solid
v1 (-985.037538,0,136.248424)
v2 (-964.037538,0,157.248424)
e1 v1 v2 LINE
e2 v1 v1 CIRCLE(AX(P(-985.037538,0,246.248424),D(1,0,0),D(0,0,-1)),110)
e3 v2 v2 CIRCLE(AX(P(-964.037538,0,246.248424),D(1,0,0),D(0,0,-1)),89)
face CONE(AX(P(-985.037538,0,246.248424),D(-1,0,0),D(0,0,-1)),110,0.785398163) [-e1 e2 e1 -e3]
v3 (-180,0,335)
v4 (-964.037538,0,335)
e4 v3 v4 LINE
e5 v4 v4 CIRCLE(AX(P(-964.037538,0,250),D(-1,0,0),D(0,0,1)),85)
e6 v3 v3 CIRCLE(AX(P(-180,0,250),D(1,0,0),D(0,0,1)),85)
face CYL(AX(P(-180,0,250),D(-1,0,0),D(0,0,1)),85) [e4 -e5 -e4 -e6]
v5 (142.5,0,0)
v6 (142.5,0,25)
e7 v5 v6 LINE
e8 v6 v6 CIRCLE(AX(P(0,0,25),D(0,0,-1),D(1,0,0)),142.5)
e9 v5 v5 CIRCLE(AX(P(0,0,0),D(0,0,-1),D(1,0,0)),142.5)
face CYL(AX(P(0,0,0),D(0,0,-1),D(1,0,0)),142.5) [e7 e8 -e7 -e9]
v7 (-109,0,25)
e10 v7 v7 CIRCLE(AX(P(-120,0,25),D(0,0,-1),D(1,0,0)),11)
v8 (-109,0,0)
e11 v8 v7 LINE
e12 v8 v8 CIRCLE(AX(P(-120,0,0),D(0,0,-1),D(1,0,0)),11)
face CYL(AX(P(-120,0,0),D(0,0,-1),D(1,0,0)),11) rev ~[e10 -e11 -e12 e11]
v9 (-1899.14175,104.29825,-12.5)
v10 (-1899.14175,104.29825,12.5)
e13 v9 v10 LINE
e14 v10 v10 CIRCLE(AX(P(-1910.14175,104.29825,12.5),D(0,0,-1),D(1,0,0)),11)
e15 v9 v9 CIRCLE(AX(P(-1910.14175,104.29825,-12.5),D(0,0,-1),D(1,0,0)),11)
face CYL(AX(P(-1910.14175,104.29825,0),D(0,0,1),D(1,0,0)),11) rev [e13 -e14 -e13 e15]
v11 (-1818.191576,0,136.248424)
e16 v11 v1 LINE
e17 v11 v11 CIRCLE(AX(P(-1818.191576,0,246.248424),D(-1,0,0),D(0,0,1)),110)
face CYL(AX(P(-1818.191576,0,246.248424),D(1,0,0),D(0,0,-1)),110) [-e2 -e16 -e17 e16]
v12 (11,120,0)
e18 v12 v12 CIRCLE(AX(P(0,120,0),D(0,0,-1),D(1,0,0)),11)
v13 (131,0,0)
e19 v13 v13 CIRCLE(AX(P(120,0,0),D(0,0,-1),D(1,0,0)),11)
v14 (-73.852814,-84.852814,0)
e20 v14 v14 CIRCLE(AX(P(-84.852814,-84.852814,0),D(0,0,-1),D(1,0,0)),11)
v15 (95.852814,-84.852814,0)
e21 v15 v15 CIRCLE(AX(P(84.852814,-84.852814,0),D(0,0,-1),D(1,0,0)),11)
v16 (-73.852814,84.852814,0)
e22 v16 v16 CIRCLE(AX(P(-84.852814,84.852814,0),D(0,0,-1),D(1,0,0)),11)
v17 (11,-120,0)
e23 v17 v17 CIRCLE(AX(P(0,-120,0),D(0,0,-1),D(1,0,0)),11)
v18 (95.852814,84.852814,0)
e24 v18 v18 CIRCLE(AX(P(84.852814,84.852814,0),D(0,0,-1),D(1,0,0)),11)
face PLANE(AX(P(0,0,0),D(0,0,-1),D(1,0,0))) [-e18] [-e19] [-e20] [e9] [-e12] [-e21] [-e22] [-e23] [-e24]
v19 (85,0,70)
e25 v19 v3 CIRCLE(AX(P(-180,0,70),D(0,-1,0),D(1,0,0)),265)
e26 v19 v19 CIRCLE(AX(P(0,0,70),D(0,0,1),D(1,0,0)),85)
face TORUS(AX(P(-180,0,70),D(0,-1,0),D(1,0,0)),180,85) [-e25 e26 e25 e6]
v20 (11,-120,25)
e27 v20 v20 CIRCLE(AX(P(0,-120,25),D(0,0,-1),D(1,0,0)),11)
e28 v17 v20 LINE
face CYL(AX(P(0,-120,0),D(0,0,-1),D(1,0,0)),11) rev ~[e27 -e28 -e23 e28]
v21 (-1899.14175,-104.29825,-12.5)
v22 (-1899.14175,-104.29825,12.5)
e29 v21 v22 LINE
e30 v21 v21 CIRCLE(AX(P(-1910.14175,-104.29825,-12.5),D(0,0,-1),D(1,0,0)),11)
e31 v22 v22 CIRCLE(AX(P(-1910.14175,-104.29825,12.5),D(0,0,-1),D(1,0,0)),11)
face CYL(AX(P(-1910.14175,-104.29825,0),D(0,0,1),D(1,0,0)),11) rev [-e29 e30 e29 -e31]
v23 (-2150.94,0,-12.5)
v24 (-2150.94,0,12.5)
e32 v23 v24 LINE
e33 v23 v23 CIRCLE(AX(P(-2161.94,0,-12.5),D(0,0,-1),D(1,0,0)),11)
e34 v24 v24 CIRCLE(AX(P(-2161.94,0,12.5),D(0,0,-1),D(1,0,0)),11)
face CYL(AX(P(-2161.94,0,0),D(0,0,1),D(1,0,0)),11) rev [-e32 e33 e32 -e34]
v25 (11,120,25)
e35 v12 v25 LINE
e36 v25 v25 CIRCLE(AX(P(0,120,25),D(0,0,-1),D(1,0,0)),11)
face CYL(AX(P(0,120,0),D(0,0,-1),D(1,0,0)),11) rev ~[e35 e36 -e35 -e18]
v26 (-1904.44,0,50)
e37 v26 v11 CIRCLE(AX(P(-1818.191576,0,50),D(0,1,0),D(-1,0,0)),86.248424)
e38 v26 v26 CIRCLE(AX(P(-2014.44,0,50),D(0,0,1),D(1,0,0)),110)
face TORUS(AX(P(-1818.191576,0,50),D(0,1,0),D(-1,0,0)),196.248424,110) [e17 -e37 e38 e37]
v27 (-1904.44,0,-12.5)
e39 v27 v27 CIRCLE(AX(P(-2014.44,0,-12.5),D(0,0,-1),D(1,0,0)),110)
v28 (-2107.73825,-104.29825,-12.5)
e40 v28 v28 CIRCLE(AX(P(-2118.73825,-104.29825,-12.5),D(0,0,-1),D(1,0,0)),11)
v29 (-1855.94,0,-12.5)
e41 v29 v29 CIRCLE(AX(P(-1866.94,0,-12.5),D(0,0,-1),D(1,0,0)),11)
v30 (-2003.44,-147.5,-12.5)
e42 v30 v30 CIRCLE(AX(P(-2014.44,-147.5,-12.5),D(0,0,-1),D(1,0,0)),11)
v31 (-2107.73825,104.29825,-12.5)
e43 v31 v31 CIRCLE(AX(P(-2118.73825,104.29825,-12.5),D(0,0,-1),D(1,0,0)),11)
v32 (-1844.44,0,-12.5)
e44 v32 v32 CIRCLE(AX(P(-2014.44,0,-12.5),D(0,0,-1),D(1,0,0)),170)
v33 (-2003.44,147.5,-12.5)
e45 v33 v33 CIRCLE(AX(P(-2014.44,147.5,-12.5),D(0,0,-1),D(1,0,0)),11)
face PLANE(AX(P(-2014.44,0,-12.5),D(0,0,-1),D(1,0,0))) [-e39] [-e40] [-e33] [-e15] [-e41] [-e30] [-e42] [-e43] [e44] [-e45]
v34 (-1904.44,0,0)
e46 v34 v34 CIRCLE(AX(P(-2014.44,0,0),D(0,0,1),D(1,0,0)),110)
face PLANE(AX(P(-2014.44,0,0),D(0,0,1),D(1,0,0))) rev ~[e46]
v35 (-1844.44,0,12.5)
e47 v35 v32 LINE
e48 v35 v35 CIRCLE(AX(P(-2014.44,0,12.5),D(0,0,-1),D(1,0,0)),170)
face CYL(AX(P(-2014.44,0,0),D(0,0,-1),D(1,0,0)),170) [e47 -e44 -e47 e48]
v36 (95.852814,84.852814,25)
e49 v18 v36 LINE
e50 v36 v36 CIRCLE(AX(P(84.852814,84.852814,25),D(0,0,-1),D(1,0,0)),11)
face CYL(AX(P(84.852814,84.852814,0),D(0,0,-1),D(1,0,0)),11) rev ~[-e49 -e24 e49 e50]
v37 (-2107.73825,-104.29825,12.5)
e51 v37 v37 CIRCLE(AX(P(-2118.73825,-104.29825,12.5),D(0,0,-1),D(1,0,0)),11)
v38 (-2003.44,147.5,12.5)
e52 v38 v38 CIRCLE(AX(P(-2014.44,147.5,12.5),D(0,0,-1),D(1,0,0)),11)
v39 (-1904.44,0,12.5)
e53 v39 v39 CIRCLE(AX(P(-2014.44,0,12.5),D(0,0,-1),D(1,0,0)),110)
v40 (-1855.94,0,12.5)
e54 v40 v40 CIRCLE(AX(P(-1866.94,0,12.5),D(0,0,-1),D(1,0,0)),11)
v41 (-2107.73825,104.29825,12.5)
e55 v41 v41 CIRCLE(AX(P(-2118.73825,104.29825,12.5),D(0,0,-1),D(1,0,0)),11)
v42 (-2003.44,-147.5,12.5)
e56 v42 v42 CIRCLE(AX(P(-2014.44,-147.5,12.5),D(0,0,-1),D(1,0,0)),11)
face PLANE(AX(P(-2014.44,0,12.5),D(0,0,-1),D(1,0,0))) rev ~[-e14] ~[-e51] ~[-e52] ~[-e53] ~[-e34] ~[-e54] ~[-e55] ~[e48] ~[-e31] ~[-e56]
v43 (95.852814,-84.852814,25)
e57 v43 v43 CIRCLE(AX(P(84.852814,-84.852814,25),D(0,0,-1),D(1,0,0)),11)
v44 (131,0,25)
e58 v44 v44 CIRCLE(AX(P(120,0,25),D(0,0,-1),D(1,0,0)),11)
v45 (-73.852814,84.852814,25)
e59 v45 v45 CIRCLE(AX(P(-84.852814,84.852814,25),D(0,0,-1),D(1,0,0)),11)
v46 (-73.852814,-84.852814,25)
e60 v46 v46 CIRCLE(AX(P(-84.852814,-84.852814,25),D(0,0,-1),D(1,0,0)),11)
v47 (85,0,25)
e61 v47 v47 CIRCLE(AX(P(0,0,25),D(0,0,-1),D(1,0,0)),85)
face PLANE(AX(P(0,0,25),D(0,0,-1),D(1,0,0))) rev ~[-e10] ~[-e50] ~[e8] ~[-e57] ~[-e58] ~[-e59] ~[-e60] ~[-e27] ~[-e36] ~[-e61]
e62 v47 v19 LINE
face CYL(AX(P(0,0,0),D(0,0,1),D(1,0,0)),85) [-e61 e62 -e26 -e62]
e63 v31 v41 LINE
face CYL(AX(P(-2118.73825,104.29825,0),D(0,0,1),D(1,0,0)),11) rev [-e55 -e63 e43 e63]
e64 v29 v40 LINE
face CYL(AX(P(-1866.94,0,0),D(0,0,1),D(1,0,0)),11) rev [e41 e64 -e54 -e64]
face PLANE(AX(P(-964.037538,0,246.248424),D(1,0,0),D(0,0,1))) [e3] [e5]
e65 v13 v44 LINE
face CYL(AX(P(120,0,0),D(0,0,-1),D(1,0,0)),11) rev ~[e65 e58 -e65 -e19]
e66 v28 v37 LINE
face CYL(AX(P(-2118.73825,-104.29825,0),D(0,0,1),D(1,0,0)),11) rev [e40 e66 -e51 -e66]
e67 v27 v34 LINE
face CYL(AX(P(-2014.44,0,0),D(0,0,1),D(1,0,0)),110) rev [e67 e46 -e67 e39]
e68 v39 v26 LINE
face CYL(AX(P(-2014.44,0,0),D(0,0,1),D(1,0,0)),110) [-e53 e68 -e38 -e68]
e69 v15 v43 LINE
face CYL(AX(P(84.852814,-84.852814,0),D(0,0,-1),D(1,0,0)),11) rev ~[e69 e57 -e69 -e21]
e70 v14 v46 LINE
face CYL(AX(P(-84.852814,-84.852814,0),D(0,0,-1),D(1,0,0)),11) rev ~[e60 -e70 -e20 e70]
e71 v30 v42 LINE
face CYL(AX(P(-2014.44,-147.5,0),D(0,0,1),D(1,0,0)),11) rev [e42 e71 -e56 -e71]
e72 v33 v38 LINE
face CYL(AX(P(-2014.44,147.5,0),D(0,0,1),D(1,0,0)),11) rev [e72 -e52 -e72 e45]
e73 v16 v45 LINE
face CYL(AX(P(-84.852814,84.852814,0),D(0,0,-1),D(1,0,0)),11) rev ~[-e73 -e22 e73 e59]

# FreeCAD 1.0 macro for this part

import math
import FreeCAD as App
import Part
import Sketcher

V = App.Vector
Q = App.Units.Quantity


def edges_at(feature, points):
    """Names of the edges that pass closest to the given points."""
    edges = feature.Shape.Edges
    near = lambda p: min(range(len(edges)), key=lambda i: edges[i].distToShape(Part.Vertex(*p))[0])
    return sorted({f"Edge{near(p) + 1}" for p in points})

doc = App.newDocument("Part")
body = doc.addObject("PartDesign::Body", "Body")

# Sketch on XY plane
sketch1 = body.newObject("Sketcher::SketchObject", "Sketch")
sketch1.AttachmentSupport = (doc.getObject("XY_Plane"), [""])
sketch1.MapMode = "FlatFace"
sketch1.addGeometry(Part.Circle(V(0, 0, 0), V(0, 0, 1), 85), False)
sketch1.addConstraint([
    Sketcher.Constraint("Coincident", 0, 3, -1, 1),
    Sketcher.Constraint("Diameter", 0, Q("170 mm")),
])

# Sketch on XZ plane
sketch2 = body.newObject("Sketcher::SketchObject", "Sketch001")
sketch2.AttachmentSupport = (doc.getObject("XZ_Plane"), [""])
sketch2.MapMode = "FlatFace"
sketch2.addGeometry([
    Part.LineSegment(V(0, 0, 0), V(0, 70, 0)),
    Part.ArcOfCircle(Part.Circle(V(-180, 70, 0), V(0, 0, 1), 180), math.radians(0), math.radians(90)),
    Part.LineSegment(V(-180, 250, 0), V(-1000, 250, 0)),
], False)
sketch2.addConstraint([
    Sketcher.Constraint("Tangent", 0, 2, 1, 1),
    Sketcher.Constraint("Tangent", 1, 2, 2, 1),
    Sketcher.Constraint("Vertical", 0),
    Sketcher.Constraint("Horizontal", 2),
    Sketcher.Constraint("Coincident", 0, 1, -1, 1),
    Sketcher.Constraint("Radius", 1, Q("180 mm")),
    Sketcher.Constraint("DistanceX", 2, 2, 2, 1, Q("820 mm")),
    Sketcher.Constraint("DistanceY", 0, 1, 0, 2, Q("70 mm")),
])
doc.recompute()

additivepipe = body.newObject("PartDesign::AdditivePipe", "AdditivePipe")
additivepipe.Profile = sketch1
additivepipe.Spine = (sketch2, ["Edge1", "Edge2", "Edge3"])

# Sketch on XY plane
sketch3 = body.newObject("Sketcher::SketchObject", "Sketch002")
sketch3.AttachmentSupport = (doc.getObject("XY_Plane"), [""])
sketch3.MapMode = "FlatFace"
sketch3.addGeometry([
    Part.Circle(V(0, 0, 0), V(0, 0, 1), 142.5),  # 0
    Part.Circle(V(-84.852814, 84.852814, 0), V(0, 0, 1), 11),  # 1
    Part.Circle(V(0, 120, 0), V(0, 0, 1), 11),  # 2
    Part.Circle(V(84.852814, 84.852814, 0), V(0, 0, 1), 11),  # 3
    Part.Circle(V(-120, 0, 0), V(0, 0, 1), 11),  # 4
    Part.Circle(V(-84.852814, -84.852814, 0), V(0, 0, 1), 11),  # 5
    Part.Circle(V(0, 0, 0), V(0, 0, 1), 85),  # 6
    Part.Circle(V(120, 0, 0), V(0, 0, 1), 11),  # 7
    Part.Circle(V(0, -120, 0), V(0, 0, 1), 11),  # 8
    Part.Circle(V(84.852814, -84.852814, 0), V(0, 0, 1), 11),  # 9
], False)
sketch3.addConstraint([
    Sketcher.Constraint("Coincident", 0, 3, -1, 1),
    Sketcher.Constraint("Coincident", 6, 3, -1, 1),
    Sketcher.Constraint("Equal", 1, 2),
    Sketcher.Constraint("Equal", 2, 3),
    Sketcher.Constraint("Equal", 3, 4),
    Sketcher.Constraint("Equal", 4, 5),
    Sketcher.Constraint("Equal", 5, 7),
    Sketcher.Constraint("Equal", 7, 8),
    Sketcher.Constraint("Equal", 8, 9),
    Sketcher.Constraint("Symmetric", 3, 3, 5, 3, -1, 1),
    Sketcher.Constraint("Symmetric", 4, 3, 7, 3, -1, 1),
    Sketcher.Constraint("Symmetric", 2, 3, 8, 3, -1, 1),
    Sketcher.Constraint("Symmetric", 1, 3, 9, 3, -1, 1),
    Sketcher.Constraint("Symmetric", 1, 3, 3, 3, -2),
    Sketcher.Constraint("PointOnObject", 2, 3, -2),
    Sketcher.Constraint("PointOnObject", 4, 3, -1),
    Sketcher.Constraint("Diameter", 0, Q("285 mm")),
    Sketcher.Constraint("Diameter", 1, Q("22 mm")),
    Sketcher.Constraint("Diameter", 6, Q("170 mm")),
    Sketcher.Constraint("DistanceY", -1, 1, 2, 3, Q("120 mm")),
    Sketcher.Constraint("DistanceX", 4, 3, -1, 1, Q("120 mm")),
    Sketcher.Constraint("DistanceX", 1, 3, -1, 1, Q("84.852814 mm")),
    Sketcher.Constraint("DistanceY", -1, 1, 1, 3, Q("84.852814 mm")),
])
pad1 = body.newObject("PartDesign::Pad", "Pad")
pad1.Profile = sketch3
pad1.Length = 25

# Sketch on XY plane
sketch4 = body.newObject("Sketcher::SketchObject", "Sketch003")
sketch4.AttachmentSupport = (doc.getObject("XY_Plane"), [""])
sketch4.MapMode = "FlatFace"
sketch4.addGeometry(Part.Circle(V(-2014.44, 0, 0), V(0, 0, 1), 110), False)
sketch4.addConstraint([
    Sketcher.Constraint("PointOnObject", 0, 3, -1),
    Sketcher.Constraint("Diameter", 0, Q("220 mm")),
    Sketcher.Constraint("DistanceX", 0, 3, -1, 1, Q("2014.44 mm")),
])

# Sketch on XZ plane
sketch5 = body.newObject("Sketcher::SketchObject", "Sketch004")
sketch5.AttachmentSupport = (doc.getObject("XZ_Plane"), [""])
sketch5.MapMode = "FlatFace"
sketch5.addGeometry([
    Part.LineSegment(V(-2018.191576, 0, 0), V(-2018.191576, 50, 0)),
    Part.ArcOfCircle(Part.Circle(V(-1818.191576, 50, 0), V(0, 0, 1), 200), math.radians(90), math.radians(180)),
    Part.LineSegment(V(-1818.191576, 250, 0), V(-964.037538, 250, 0)),
], False)
sketch5.addConstraint([
    Sketcher.Constraint("Tangent", 0, 2, 1, 2),
    Sketcher.Constraint("Tangent", 1, 1, 2, 1),
    Sketcher.Constraint("Vertical", 0),
    Sketcher.Constraint("Horizontal", 2),
    Sketcher.Constraint("PointOnObject", 0, 1, -1),
    Sketcher.Constraint("Radius", 1, Q("200 mm")),
    Sketcher.Constraint("DistanceY", 0, 1, 0, 2, Q("50 mm")),
    Sketcher.Constraint("DistanceX", 2, 1, 2, 2, Q("854.154038 mm")),
    Sketcher.Constraint("DistanceX", 1, 3, -1, 1, Q("1818.191576 mm")),
])
doc.recompute()

additivepipe2 = body.newObject("PartDesign::AdditivePipe", "AdditivePipe001")
additivepipe2.Profile = sketch4
additivepipe2.Spine = (sketch5, ["Edge1", "Edge2", "Edge3"])
doc.recompute()

chamfer = body.newObject("PartDesign::Chamfer", "Chamfer")
chamfer.Base = (additivepipe2, edges_at(additivepipe2, [(-964.038, 0, 356.248)]))
chamfer.Size = 21

# Sketch on XY plane
sketch6 = body.newObject("Sketcher::SketchObject", "Sketch005")
sketch6.AttachmentSupport = (doc.getObject("XY_Plane"), [""])
sketch6.MapMode = "FlatFace"
sketch6.addGeometry([
    Part.Circle(V(-2014.44, 0, 0), V(0, 0, 1), 170),  # 0
    Part.Circle(V(-2118.73825, 104.29825, 0), V(0, 0, 1), 11),  # 1
    Part.Circle(V(-2014.44, 147.5, 0), V(0, 0, 1), 11),  # 2
    Part.Circle(V(-1910.14175, 104.29825, 0), V(0, 0, 1), 11),  # 3
    Part.Circle(V(-2161.94, 0, 0), V(0, 0, 1), 11),  # 4
    Part.Circle(V(-2118.73825, -104.29825, 0), V(0, 0, 1), 11),  # 5
    Part.Circle(V(-2014.44, 0, 0), V(0, 0, 1), 110),  # 6
    Part.Circle(V(-1866.94, 0, 0), V(0, 0, 1), 11),  # 7
    Part.Circle(V(-2014.44, -147.5, 0), V(0, 0, 1), 11),  # 8
    Part.Circle(V(-1910.14175, -104.29825, 0), V(0, 0, 1), 11),  # 9
], False)
sketch6.addConstraint([
    Sketcher.Constraint("Coincident", 6, 3, 0, 3),
    Sketcher.Constraint("Equal", 1, 2),
    Sketcher.Constraint("Equal", 2, 3),
    Sketcher.Constraint("Equal", 3, 4),
    Sketcher.Constraint("Equal", 4, 5),
    Sketcher.Constraint("Equal", 5, 7),
    Sketcher.Constraint("Equal", 7, 8),
    Sketcher.Constraint("Equal", 8, 9),
    Sketcher.Constraint("Symmetric", 1, 3, 5, 3, -1),
    Sketcher.Constraint("Symmetric", 2, 3, 8, 3, -1),
    Sketcher.Constraint("Symmetric", 3, 3, 9, 3, -1),
    Sketcher.Constraint("PointOnObject", 0, 3, -1),
    Sketcher.Constraint("PointOnObject", 4, 3, -1),
    Sketcher.Constraint("PointOnObject", 7, 3, -1),
    Sketcher.Constraint("Horizontal", 1, 3, 3, 3),
    Sketcher.Constraint("Vertical", 0, 3, 2, 3),
    Sketcher.Constraint("Diameter", 0, Q("340 mm")),
    Sketcher.Constraint("Diameter", 1, Q("22 mm")),
    Sketcher.Constraint("Diameter", 6, Q("220 mm")),
    Sketcher.Constraint("DistanceY", -1, 1, 2, 3, Q("147.5 mm")),
    Sketcher.Constraint("DistanceX", 4, 3, 0, 3, Q("147.5 mm")),
    Sketcher.Constraint("DistanceX", 0, 3, 7, 3, Q("147.5 mm")),
    Sketcher.Constraint("DistanceX", 0, 3, -1, 1, Q("2014.44 mm")),
    Sketcher.Constraint("DistanceX", 1, 3, 3, 3, Q("208.5965 mm")),
    Sketcher.Constraint("DistanceY", 5, 3, 1, 3, Q("208.5965 mm")),
    Sketcher.Constraint("DistanceX", 1, 3, -1, 1, Q("2118.73825 mm")),
])
pad2 = body.newObject("PartDesign::Pad", "Pad001")
pad2.Profile = sketch6
pad2.Length = 25
pad2.Midplane = True

doc.recompute()
